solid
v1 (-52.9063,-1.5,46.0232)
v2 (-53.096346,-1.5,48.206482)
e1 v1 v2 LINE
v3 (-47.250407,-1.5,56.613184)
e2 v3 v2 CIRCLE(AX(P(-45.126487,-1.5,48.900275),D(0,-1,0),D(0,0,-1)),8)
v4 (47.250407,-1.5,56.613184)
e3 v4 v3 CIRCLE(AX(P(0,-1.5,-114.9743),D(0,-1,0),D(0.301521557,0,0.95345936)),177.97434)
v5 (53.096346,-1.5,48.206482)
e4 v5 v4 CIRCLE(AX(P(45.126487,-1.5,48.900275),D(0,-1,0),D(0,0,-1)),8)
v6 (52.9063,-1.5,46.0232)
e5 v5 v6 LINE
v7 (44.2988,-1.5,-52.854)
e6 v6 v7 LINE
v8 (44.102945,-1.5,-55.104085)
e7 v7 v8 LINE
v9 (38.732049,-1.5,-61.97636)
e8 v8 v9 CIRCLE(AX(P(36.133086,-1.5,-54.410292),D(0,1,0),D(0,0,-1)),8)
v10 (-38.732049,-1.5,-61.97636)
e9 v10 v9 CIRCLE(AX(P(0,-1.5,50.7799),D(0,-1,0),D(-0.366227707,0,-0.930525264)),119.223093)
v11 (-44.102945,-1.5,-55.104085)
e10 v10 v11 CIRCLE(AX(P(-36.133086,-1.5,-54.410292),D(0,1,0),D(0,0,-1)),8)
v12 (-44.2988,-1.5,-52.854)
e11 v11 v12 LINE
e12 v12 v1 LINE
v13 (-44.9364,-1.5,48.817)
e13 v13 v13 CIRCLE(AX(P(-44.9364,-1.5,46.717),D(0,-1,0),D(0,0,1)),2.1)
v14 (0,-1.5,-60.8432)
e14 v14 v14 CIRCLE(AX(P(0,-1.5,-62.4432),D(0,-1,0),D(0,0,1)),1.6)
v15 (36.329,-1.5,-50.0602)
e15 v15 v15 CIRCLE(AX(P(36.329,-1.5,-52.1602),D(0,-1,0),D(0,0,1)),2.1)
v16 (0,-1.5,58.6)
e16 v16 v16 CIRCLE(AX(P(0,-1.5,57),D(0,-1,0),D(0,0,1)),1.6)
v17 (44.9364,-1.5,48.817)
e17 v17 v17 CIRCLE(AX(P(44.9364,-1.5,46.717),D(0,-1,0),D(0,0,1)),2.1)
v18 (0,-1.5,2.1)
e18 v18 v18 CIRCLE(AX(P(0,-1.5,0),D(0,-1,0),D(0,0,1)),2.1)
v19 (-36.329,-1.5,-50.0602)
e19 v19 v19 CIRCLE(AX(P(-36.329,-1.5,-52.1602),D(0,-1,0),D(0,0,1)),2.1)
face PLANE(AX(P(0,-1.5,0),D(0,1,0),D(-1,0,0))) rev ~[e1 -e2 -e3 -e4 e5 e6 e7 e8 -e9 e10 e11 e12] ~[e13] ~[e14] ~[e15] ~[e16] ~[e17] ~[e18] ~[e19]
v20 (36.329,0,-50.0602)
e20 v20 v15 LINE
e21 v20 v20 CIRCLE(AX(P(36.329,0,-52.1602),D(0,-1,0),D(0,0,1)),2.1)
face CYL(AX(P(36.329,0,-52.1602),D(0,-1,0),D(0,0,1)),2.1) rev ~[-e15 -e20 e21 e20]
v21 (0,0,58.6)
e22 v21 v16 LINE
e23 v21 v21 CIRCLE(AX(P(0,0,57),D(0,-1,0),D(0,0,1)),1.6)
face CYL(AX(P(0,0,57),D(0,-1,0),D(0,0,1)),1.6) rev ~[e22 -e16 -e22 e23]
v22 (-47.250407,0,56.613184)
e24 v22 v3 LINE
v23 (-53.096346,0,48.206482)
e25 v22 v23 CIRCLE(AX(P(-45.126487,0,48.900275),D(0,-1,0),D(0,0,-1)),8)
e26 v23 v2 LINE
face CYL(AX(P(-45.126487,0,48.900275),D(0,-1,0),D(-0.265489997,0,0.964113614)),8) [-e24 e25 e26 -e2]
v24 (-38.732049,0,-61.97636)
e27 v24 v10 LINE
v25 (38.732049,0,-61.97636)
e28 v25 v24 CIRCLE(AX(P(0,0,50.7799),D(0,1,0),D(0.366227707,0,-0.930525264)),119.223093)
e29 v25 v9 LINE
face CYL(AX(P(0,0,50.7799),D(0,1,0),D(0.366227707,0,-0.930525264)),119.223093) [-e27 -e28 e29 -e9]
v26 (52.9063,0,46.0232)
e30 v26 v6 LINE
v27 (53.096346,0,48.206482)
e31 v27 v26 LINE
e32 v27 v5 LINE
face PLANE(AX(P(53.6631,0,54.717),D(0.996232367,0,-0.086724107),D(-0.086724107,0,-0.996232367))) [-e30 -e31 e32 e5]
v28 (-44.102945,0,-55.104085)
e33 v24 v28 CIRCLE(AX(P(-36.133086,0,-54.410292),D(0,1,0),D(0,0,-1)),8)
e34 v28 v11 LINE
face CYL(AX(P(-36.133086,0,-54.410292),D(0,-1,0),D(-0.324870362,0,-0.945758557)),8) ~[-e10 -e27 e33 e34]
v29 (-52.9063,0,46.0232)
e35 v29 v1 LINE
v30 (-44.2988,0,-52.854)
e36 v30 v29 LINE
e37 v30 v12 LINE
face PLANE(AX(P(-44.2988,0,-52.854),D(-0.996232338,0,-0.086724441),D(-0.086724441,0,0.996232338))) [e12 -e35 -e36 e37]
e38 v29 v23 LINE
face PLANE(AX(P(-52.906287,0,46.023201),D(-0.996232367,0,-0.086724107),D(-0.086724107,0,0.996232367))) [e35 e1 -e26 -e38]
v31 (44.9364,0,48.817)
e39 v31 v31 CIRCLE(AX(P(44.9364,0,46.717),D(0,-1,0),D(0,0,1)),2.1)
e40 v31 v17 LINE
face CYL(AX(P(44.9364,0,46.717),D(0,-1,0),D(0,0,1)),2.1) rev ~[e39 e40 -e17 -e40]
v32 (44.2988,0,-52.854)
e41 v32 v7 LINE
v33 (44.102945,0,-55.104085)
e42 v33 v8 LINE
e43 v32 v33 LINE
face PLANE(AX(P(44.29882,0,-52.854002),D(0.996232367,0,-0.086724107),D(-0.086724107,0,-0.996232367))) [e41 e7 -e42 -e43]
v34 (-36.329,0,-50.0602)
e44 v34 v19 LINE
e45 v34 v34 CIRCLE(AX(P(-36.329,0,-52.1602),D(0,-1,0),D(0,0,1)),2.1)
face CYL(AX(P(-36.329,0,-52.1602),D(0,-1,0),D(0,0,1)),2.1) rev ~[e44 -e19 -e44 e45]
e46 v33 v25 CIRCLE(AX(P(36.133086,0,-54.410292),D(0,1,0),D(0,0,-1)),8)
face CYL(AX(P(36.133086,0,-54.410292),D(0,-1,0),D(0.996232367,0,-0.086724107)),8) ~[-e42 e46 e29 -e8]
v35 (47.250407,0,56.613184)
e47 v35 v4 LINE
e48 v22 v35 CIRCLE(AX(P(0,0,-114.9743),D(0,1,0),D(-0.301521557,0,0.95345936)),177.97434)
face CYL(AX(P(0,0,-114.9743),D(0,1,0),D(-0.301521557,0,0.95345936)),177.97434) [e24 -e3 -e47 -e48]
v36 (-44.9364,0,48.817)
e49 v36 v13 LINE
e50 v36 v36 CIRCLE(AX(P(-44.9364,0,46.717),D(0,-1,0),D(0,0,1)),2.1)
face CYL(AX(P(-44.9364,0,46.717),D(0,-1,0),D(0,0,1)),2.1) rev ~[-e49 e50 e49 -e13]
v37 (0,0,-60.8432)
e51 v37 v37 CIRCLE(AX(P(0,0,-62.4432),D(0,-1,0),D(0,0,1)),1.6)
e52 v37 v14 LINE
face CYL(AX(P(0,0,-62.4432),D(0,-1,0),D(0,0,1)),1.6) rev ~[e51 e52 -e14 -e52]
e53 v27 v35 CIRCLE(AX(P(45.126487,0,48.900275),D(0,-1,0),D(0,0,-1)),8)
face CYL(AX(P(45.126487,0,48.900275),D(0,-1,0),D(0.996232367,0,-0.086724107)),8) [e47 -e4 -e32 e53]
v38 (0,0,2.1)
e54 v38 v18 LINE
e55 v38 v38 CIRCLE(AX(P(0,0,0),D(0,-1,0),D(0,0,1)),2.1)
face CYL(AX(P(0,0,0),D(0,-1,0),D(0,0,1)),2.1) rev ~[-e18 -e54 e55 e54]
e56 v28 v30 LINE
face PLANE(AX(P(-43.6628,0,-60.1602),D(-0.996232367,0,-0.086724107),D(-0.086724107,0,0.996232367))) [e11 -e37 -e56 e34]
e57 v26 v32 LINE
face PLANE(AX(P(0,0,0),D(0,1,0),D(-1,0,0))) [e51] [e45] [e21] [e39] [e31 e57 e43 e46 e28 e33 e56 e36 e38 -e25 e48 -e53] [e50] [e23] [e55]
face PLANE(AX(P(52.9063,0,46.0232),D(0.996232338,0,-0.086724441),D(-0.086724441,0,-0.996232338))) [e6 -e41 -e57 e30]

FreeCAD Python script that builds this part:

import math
import FreeCAD as App
import Part
import Sketcher
from FreeCAD import Vector


def edges_at(feature, points):
    """Names of the edges that pass closest to the given points."""
    edges = feature.Shape.Edges
    near = lambda p: min(range(len(edges)), key=lambda i: edges[i].distToShape(Part.Vertex(*p))[0])
    return sorted({f"Edge{near(p) + 1}" for p in points})

doc = App.newDocument("Part")
body = doc.addObject("PartDesign::Body", "Body")

# Sketch on XZ plane
sketch1 = body.newObject("Sketcher::SketchObject", "Sketch")
sketch1.AttachmentSupport = (doc.getObject("XZ_Plane"), [""])
sketch1.MapMode = "FlatFace"
sketch1.addGeometry(Part.LineSegment(Vector(53, 46, 0), Vector(44, -53, 0)), False)
sketch1.addGeometry(Part.LineSegment(Vector(44, -53, 0), Vector(44, -60, 0)), False)
sketch1.addGeometry(Part.ArcOfCircle(Part.Circle(Vector(0, 51, 0), Vector(0, 0, 1), 119), math.radians(-111), math.radians(-69)), False)
sketch1.addGeometry(Part.LineSegment(Vector(-44, -60, 0), Vector(-44, -53, 0)), False)
sketch1.addGeometry(Part.LineSegment(Vector(-44, -53, 0), Vector(-53, 46, 0)), False)
sketch1.addGeometry(Part.LineSegment(Vector(-53, 46, 0), Vector(-54, 55, 0)), False)
sketch1.addGeometry(Part.ArcOfCircle(Part.Circle(Vector(0, -115, 0), Vector(0, 0, 1), 178), math.radians(72), math.radians(108)), False)
sketch1.addGeometry(Part.LineSegment(Vector(54, 55, 0), Vector(53, 46, 0)), False)
sketch1.addConstraint(Sketcher.Constraint("Coincident", 0, 2, 1, 1))
sketch1.addConstraint(Sketcher.Constraint("Coincident", 1, 2, 2, 2))
sketch1.addConstraint(Sketcher.Constraint("Coincident", 2, 1, 3, 1))
sketch1.addConstraint(Sketcher.Constraint("Coincident", 3, 2, 4, 1))
sketch1.addConstraint(Sketcher.Constraint("Coincident", 4, 2, 5, 1))
sketch1.addConstraint(Sketcher.Constraint("Coincident", 5, 2, 6, 2))
sketch1.addConstraint(Sketcher.Constraint("Coincident", 6, 1, 7, 1))
sketch1.addConstraint(Sketcher.Constraint("Coincident", 7, 2, 0, 1))
sketch1.addConstraint(Sketcher.Constraint("Symmetric", 1, 2, 2, 1, -2))
sketch1.addConstraint(Sketcher.Constraint("Symmetric", 0, 2, 3, 2, -2))
sketch1.addConstraint(Sketcher.Constraint("Symmetric", 5, 2, 6, 1, -2))
sketch1.addConstraint(Sketcher.Constraint("Symmetric", 4, 2, 7, 2, -2))
sketch1.addConstraint(Sketcher.Constraint("Parallel", 0, 1))
sketch1.addConstraint(Sketcher.Constraint("Parallel", 4, 5))
sketch1.addConstraint(Sketcher.Constraint("Radius", 2, 119.223))
sketch1.addConstraint(Sketcher.Constraint("Radius", 6, 177.9743))
sketch1.addConstraint(Sketcher.Constraint("DistanceY", -1, 1, 2, 3, 50.78))
sketch1.addConstraint(Sketcher.Constraint("DistanceY", 1, 2, 2, 3, 110.94))
sketch1.addConstraint(Sketcher.Constraint("DistanceY", 0, 2, -1, 1, 52.854))
sketch1.addConstraint(Sketcher.Constraint("DistanceX", 5, 2, -1, 1, 53.663))
sketch1.addConstraint(Sketcher.Constraint("DistanceY", -1, 1, 5, 2, 54.717))
sketch1.addConstraint(Sketcher.Constraint("DistanceX", 4, 2, 0, 2, 97.205))
pad1 = body.newObject("PartDesign::Pad", "Pad")
pad1.Profile = sketch1
pad1.Length = 1.5

# Sketch on XZ plane
sketch2 = body.newObject("Sketcher::SketchObject", "Sketch001")
sketch2.AttachmentSupport = (doc.getObject("XZ_Plane"), [""])
sketch2.MapMode = "FlatFace"
sketch2.addGeometry(Part.Circle(Vector(36.3, -52.2, 0), Vector(0, 0, 1), 2.1), False)
sketch2.addGeometry(Part.Circle(Vector(44.9, 46.7, 0), Vector(0, 0, 1), 2.1), False)
sketch2.addGeometry(Part.Circle(Vector(0, 0, 0), Vector(0, 0, 1), 2.1), False)
sketch2.addGeometry(Part.Circle(Vector(-36.3, -52.2, 0), Vector(0, 0, 1), 2.1), False)
sketch2.addGeometry(Part.Circle(Vector(-44.9, 46.7, 0), Vector(0, 0, 1), 2.1), False)
sketch2.addConstraint(Sketcher.Constraint("Coincident", 2, 3, -1, 1))
sketch2.addConstraint(Sketcher.Constraint("Equal", 0, 1))
sketch2.addConstraint(Sketcher.Constraint("Equal", 1, 2))
sketch2.addConstraint(Sketcher.Constraint("Equal", 2, 3))
sketch2.addConstraint(Sketcher.Constraint("Equal", 3, 4))
sketch2.addConstraint(Sketcher.Constraint("Symmetric", 0, 3, 3, 3, -2))
sketch2.addConstraint(Sketcher.Constraint("Symmetric", 1, 3, 4, 3, -2))
sketch2.addConstraint(Sketcher.Constraint("Diameter", 0, 4.2))
sketch2.addConstraint(Sketcher.Constraint("DistanceX", -1, 1, 0, 3, 36.329))
sketch2.addConstraint(Sketcher.Constraint("DistanceY", -1, 1, 1, 3, 46.717))
sketch2.addConstraint(Sketcher.Constraint("DistanceY", 0, 3, -1, 1, 52.1602))
sketch2.addConstraint(Sketcher.Constraint("DistanceX", -1, 1, 1, 3, 44.9364))
doc.recompute()
hole = body.newObject("PartDesign::Hole", "Hole")
hole.Profile = sketch2
hole.ThreadType = "None"
hole.Diameter = 4.2
hole.DepthType = "Dimension"
hole.Depth = 1.5
hole.DrillPoint = "Flat"
hole.Reversed = True

# Sketch on XZ plane
sketch3 = body.newObject("Sketcher::SketchObject", "Sketch002")
sketch3.AttachmentSupport = (doc.getObject("XZ_Plane"), [""])
sketch3.MapMode = "FlatFace"
sketch3.addGeometry(Part.Circle(Vector(0, 57, 0), Vector(0, 0, 1), 1.6), False)
sketch3.addGeometry(Part.Circle(Vector(0, -62.4, 0), Vector(0, 0, 1), 1.6), False)
sketch3.addConstraint(Sketcher.Constraint("Equal", 0, 1))
sketch3.addConstraint(Sketcher.Constraint("PointOnObject", 0, 3, -2))
sketch3.addConstraint(Sketcher.Constraint("PointOnObject", 1, 3, -2))
sketch3.addConstraint(Sketcher.Constraint("Diameter", 0, 3.2))
sketch3.addConstraint(Sketcher.Constraint("DistanceY", -1, 1, 0, 3, 57.0))
sketch3.addConstraint(Sketcher.Constraint("DistanceY", 1, 3, -1, 1, 62.4432))
doc.recompute()
hole2 = body.newObject("PartDesign::Hole", "Hole001")
hole2.Profile = sketch3
hole2.ThreadType = "None"
hole2.Diameter = 3.2
hole2.DepthType = "Dimension"
hole2.Depth = 1.5
hole2.DrillPoint = "Flat"
hole2.Reversed = True
doc.recompute()

fillet = body.newObject("PartDesign::Fillet", "Fillet")
fillet.Base = (hole2, edges_at(hole2, [
    (53.663, -0.75, 54.717),
    (43.663, -0.75, -60.16),
    (-43.663, -0.75, -60.16),
    (-53.663, -0.75, 54.717),
]))
fillet.Radius = 8

doc.recompute()
